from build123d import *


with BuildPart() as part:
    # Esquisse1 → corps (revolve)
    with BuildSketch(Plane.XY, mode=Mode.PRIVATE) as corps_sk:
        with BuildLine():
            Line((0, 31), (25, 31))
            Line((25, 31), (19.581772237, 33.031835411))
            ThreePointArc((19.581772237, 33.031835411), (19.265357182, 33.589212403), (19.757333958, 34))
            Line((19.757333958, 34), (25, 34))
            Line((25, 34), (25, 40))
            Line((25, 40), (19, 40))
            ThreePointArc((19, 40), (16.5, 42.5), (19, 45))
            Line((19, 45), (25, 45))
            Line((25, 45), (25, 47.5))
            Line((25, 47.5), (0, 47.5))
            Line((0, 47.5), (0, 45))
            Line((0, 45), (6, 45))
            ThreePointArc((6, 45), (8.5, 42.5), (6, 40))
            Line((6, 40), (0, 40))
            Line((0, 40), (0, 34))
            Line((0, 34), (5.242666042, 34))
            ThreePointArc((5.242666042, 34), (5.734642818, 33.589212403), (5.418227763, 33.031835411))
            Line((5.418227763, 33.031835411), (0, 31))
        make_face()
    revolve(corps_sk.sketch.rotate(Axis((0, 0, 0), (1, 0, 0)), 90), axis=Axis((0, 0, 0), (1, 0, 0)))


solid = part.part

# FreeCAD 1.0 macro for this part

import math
import FreeCAD as App
import Part
import Sketcher

doc = App.newDocument("Part")
params = doc.addObject("Spreadsheet::Sheet", "Params")
for row, (alias, value) in enumerate([
    ("sketch1_radius", "0.5 mm"),
    ("sketch1_radius2", "2.5 mm"),
    ("sketch1_width", "25 mm"),
    ("sketch1_width2", "6 mm"),
    ("sketch1_height", "2.5 mm"),
    ("revolution_angle", "360 deg"),
], start=1):
    params.set(f"A{row}", alias)
    params.set(f"B{row}", "=" + value)
    params.setAlias(f"B{row}", alias)

body = doc.addObject("PartDesign::Body", "Body")

# Sketch on XY plane
sketch1 = body.newObject("Sketcher::SketchObject", "Sketch")
sketch1.AttachmentSupport = (doc.getObject("XY_Plane"), [""])
sketch1.MapMode = "FlatFace"
sketch1.addGeometry([
    Part.LineSegment(App.Vector(0, 31, 0), App.Vector(25, 31, 0)),  # 0
    Part.LineSegment(App.Vector(25, 31, 0), App.Vector(19.6, 33, 0)),  # 1
    Part.ArcOfCircle(Part.Circle(App.Vector(19.8, 33.5, 0), App.Vector(0, 0, 1), 0.5), math.radians(90), math.radians(249)),  # 2
    Part.LineSegment(App.Vector(19.8, 34, 0), App.Vector(25, 34, 0)),  # 3
    Part.LineSegment(App.Vector(25, 34, 0), App.Vector(25, 40, 0)),  # 4
    Part.LineSegment(App.Vector(25, 40, 0), App.Vector(19, 40, 0)),  # 5
    Part.ArcOfCircle(Part.Circle(App.Vector(19, 42.5, 0), App.Vector(0, 0, 1), 2.5), math.radians(90), math.radians(270)),  # 6
    Part.LineSegment(App.Vector(19, 45, 0), App.Vector(25, 45, 0)),  # 7
    Part.LineSegment(App.Vector(25, 45, 0), App.Vector(25, 47.5, 0)),  # 8
    Part.LineSegment(App.Vector(25, 47.5, 0), App.Vector(0, 47.5, 0)),  # 9
    Part.LineSegment(App.Vector(0, 47.5, 0), App.Vector(0, 45, 0)),  # 10
    Part.LineSegment(App.Vector(0, 45, 0), App.Vector(6, 45, 0)),  # 11
    Part.ArcOfCircle(Part.Circle(App.Vector(6, 42.5, 0), App.Vector(0, 0, 1), 2.5), math.radians(-90), math.radians(90)),  # 12
    Part.LineSegment(App.Vector(6, 40, 0), App.Vector(0, 40, 0)),  # 13
    Part.LineSegment(App.Vector(0, 40, 0), App.Vector(0, 34, 0)),  # 14
    Part.LineSegment(App.Vector(0, 34, 0), App.Vector(5.2, 34, 0)),  # 15
    Part.ArcOfCircle(Part.Circle(App.Vector(5.2, 33.5, 0), App.Vector(0, 0, 1), 0.5), math.radians(-69), math.radians(90)),  # 16
    Part.LineSegment(App.Vector(5.4, 33, 0), App.Vector(0, 31, 0)),  # 17
], False)
sketch1.addConstraint([
    Sketcher.Constraint("Coincident", 0, 2, 1, 1),
    Sketcher.Constraint("Tangent", 1, 2, 2, 2),
    Sketcher.Constraint("Tangent", 2, 1, 3, 1),
    Sketcher.Constraint("Coincident", 3, 2, 4, 1),
    Sketcher.Constraint("Coincident", 4, 2, 5, 1),
    Sketcher.Constraint("Tangent", 5, 2, 6, 2),
    Sketcher.Constraint("Tangent", 6, 1, 7, 1),
    Sketcher.Constraint("Coincident", 7, 2, 8, 1),
    Sketcher.Constraint("Coincident", 8, 2, 9, 1),
    Sketcher.Constraint("Coincident", 9, 2, 10, 1),
    Sketcher.Constraint("Coincident", 10, 2, 11, 1),
    Sketcher.Constraint("Tangent", 11, 2, 12, 2),
    Sketcher.Constraint("Tangent", 12, 1, 13, 1),
    Sketcher.Constraint("Coincident", 13, 2, 14, 1),
    Sketcher.Constraint("Coincident", 14, 2, 15, 1),
    Sketcher.Constraint("Tangent", 15, 2, 16, 2),
    Sketcher.Constraint("Tangent", 16, 1, 17, 1),
    Sketcher.Constraint("Coincident", 17, 2, 0, 1),
    Sketcher.Constraint("Horizontal", 0),
    Sketcher.Constraint("Horizontal", 3),
    Sketcher.Constraint("Vertical", 4),
    Sketcher.Constraint("Horizontal", 5),
    Sketcher.Constraint("Horizontal", 7),
    Sketcher.Constraint("Vertical", 8),
    Sketcher.Constraint("Horizontal", 9),
    Sketcher.Constraint("Vertical", 10),
    Sketcher.Constraint("Horizontal", 11),
    Sketcher.Constraint("Horizontal", 13),
    Sketcher.Constraint("Vertical", 14),
    Sketcher.Constraint("Horizontal", 15),
    Sketcher.Constraint("Equal", 6, 12),
    Sketcher.Constraint("Equal", 2, 16),
    Sketcher.Constraint("PointOnObject", 9, 2, -2),
    Sketcher.Constraint("PointOnObject", 13, 2, -2),
    Sketcher.Constraint("PointOnObject", 17, 2, -2),
    Sketcher.Constraint("Horizontal", 6, 3, 12, 3),
    Sketcher.Constraint("Horizontal", 2, 3, 16, 3),
    Sketcher.Constraint("Horizontal", 1, 2, 16, 1),
    Sketcher.Constraint("Vertical", 0, 2, 3, 2),
    Sketcher.Constraint("Vertical", 4, 2, 7, 2),
    Sketcher.Constraint("Equal", 7, 11),
    Sketcher.Constraint("Equal", 13, 4),
    Sketcher.Constraint("Radius", 2, 0.5),
    Sketcher.Constraint("Radius", 6, 2.5),
    Sketcher.Constraint("DistanceX", 0, 1, 0, 2, 25.0),
    Sketcher.Constraint("DistanceX", 5, 2, 5, 1, 6.0),
    Sketcher.Constraint("DistanceY", 8, 1, 8, 2, 2.5),
    Sketcher.Constraint("DistanceY", -1, 1, 0, 2, 31.0),
    Sketcher.Constraint("DistanceY", -1, 1, 2, 1, 34.0),
    Sketcher.Constraint("Distance", 1, 5.78667),
])
sketch1.setExpression("Constraints[42]", "Params.sketch1_radius")
sketch1.setExpression("Constraints[43]", "Params.sketch1_radius2")
sketch1.setExpression("Constraints[44]", "Params.sketch1_width")
sketch1.setExpression("Constraints[45]", "Params.sketch1_width2")
sketch1.setExpression("Constraints[46]", "Params.sketch1_height")
revolution = body.newObject("PartDesign::Revolution", "Revolution")
revolution.Profile = sketch1
revolution.ReferenceAxis = (sketch1, ["H_Axis"])
revolution.setExpression("Angle", "Params.revolution_angle")

doc.recompute()
